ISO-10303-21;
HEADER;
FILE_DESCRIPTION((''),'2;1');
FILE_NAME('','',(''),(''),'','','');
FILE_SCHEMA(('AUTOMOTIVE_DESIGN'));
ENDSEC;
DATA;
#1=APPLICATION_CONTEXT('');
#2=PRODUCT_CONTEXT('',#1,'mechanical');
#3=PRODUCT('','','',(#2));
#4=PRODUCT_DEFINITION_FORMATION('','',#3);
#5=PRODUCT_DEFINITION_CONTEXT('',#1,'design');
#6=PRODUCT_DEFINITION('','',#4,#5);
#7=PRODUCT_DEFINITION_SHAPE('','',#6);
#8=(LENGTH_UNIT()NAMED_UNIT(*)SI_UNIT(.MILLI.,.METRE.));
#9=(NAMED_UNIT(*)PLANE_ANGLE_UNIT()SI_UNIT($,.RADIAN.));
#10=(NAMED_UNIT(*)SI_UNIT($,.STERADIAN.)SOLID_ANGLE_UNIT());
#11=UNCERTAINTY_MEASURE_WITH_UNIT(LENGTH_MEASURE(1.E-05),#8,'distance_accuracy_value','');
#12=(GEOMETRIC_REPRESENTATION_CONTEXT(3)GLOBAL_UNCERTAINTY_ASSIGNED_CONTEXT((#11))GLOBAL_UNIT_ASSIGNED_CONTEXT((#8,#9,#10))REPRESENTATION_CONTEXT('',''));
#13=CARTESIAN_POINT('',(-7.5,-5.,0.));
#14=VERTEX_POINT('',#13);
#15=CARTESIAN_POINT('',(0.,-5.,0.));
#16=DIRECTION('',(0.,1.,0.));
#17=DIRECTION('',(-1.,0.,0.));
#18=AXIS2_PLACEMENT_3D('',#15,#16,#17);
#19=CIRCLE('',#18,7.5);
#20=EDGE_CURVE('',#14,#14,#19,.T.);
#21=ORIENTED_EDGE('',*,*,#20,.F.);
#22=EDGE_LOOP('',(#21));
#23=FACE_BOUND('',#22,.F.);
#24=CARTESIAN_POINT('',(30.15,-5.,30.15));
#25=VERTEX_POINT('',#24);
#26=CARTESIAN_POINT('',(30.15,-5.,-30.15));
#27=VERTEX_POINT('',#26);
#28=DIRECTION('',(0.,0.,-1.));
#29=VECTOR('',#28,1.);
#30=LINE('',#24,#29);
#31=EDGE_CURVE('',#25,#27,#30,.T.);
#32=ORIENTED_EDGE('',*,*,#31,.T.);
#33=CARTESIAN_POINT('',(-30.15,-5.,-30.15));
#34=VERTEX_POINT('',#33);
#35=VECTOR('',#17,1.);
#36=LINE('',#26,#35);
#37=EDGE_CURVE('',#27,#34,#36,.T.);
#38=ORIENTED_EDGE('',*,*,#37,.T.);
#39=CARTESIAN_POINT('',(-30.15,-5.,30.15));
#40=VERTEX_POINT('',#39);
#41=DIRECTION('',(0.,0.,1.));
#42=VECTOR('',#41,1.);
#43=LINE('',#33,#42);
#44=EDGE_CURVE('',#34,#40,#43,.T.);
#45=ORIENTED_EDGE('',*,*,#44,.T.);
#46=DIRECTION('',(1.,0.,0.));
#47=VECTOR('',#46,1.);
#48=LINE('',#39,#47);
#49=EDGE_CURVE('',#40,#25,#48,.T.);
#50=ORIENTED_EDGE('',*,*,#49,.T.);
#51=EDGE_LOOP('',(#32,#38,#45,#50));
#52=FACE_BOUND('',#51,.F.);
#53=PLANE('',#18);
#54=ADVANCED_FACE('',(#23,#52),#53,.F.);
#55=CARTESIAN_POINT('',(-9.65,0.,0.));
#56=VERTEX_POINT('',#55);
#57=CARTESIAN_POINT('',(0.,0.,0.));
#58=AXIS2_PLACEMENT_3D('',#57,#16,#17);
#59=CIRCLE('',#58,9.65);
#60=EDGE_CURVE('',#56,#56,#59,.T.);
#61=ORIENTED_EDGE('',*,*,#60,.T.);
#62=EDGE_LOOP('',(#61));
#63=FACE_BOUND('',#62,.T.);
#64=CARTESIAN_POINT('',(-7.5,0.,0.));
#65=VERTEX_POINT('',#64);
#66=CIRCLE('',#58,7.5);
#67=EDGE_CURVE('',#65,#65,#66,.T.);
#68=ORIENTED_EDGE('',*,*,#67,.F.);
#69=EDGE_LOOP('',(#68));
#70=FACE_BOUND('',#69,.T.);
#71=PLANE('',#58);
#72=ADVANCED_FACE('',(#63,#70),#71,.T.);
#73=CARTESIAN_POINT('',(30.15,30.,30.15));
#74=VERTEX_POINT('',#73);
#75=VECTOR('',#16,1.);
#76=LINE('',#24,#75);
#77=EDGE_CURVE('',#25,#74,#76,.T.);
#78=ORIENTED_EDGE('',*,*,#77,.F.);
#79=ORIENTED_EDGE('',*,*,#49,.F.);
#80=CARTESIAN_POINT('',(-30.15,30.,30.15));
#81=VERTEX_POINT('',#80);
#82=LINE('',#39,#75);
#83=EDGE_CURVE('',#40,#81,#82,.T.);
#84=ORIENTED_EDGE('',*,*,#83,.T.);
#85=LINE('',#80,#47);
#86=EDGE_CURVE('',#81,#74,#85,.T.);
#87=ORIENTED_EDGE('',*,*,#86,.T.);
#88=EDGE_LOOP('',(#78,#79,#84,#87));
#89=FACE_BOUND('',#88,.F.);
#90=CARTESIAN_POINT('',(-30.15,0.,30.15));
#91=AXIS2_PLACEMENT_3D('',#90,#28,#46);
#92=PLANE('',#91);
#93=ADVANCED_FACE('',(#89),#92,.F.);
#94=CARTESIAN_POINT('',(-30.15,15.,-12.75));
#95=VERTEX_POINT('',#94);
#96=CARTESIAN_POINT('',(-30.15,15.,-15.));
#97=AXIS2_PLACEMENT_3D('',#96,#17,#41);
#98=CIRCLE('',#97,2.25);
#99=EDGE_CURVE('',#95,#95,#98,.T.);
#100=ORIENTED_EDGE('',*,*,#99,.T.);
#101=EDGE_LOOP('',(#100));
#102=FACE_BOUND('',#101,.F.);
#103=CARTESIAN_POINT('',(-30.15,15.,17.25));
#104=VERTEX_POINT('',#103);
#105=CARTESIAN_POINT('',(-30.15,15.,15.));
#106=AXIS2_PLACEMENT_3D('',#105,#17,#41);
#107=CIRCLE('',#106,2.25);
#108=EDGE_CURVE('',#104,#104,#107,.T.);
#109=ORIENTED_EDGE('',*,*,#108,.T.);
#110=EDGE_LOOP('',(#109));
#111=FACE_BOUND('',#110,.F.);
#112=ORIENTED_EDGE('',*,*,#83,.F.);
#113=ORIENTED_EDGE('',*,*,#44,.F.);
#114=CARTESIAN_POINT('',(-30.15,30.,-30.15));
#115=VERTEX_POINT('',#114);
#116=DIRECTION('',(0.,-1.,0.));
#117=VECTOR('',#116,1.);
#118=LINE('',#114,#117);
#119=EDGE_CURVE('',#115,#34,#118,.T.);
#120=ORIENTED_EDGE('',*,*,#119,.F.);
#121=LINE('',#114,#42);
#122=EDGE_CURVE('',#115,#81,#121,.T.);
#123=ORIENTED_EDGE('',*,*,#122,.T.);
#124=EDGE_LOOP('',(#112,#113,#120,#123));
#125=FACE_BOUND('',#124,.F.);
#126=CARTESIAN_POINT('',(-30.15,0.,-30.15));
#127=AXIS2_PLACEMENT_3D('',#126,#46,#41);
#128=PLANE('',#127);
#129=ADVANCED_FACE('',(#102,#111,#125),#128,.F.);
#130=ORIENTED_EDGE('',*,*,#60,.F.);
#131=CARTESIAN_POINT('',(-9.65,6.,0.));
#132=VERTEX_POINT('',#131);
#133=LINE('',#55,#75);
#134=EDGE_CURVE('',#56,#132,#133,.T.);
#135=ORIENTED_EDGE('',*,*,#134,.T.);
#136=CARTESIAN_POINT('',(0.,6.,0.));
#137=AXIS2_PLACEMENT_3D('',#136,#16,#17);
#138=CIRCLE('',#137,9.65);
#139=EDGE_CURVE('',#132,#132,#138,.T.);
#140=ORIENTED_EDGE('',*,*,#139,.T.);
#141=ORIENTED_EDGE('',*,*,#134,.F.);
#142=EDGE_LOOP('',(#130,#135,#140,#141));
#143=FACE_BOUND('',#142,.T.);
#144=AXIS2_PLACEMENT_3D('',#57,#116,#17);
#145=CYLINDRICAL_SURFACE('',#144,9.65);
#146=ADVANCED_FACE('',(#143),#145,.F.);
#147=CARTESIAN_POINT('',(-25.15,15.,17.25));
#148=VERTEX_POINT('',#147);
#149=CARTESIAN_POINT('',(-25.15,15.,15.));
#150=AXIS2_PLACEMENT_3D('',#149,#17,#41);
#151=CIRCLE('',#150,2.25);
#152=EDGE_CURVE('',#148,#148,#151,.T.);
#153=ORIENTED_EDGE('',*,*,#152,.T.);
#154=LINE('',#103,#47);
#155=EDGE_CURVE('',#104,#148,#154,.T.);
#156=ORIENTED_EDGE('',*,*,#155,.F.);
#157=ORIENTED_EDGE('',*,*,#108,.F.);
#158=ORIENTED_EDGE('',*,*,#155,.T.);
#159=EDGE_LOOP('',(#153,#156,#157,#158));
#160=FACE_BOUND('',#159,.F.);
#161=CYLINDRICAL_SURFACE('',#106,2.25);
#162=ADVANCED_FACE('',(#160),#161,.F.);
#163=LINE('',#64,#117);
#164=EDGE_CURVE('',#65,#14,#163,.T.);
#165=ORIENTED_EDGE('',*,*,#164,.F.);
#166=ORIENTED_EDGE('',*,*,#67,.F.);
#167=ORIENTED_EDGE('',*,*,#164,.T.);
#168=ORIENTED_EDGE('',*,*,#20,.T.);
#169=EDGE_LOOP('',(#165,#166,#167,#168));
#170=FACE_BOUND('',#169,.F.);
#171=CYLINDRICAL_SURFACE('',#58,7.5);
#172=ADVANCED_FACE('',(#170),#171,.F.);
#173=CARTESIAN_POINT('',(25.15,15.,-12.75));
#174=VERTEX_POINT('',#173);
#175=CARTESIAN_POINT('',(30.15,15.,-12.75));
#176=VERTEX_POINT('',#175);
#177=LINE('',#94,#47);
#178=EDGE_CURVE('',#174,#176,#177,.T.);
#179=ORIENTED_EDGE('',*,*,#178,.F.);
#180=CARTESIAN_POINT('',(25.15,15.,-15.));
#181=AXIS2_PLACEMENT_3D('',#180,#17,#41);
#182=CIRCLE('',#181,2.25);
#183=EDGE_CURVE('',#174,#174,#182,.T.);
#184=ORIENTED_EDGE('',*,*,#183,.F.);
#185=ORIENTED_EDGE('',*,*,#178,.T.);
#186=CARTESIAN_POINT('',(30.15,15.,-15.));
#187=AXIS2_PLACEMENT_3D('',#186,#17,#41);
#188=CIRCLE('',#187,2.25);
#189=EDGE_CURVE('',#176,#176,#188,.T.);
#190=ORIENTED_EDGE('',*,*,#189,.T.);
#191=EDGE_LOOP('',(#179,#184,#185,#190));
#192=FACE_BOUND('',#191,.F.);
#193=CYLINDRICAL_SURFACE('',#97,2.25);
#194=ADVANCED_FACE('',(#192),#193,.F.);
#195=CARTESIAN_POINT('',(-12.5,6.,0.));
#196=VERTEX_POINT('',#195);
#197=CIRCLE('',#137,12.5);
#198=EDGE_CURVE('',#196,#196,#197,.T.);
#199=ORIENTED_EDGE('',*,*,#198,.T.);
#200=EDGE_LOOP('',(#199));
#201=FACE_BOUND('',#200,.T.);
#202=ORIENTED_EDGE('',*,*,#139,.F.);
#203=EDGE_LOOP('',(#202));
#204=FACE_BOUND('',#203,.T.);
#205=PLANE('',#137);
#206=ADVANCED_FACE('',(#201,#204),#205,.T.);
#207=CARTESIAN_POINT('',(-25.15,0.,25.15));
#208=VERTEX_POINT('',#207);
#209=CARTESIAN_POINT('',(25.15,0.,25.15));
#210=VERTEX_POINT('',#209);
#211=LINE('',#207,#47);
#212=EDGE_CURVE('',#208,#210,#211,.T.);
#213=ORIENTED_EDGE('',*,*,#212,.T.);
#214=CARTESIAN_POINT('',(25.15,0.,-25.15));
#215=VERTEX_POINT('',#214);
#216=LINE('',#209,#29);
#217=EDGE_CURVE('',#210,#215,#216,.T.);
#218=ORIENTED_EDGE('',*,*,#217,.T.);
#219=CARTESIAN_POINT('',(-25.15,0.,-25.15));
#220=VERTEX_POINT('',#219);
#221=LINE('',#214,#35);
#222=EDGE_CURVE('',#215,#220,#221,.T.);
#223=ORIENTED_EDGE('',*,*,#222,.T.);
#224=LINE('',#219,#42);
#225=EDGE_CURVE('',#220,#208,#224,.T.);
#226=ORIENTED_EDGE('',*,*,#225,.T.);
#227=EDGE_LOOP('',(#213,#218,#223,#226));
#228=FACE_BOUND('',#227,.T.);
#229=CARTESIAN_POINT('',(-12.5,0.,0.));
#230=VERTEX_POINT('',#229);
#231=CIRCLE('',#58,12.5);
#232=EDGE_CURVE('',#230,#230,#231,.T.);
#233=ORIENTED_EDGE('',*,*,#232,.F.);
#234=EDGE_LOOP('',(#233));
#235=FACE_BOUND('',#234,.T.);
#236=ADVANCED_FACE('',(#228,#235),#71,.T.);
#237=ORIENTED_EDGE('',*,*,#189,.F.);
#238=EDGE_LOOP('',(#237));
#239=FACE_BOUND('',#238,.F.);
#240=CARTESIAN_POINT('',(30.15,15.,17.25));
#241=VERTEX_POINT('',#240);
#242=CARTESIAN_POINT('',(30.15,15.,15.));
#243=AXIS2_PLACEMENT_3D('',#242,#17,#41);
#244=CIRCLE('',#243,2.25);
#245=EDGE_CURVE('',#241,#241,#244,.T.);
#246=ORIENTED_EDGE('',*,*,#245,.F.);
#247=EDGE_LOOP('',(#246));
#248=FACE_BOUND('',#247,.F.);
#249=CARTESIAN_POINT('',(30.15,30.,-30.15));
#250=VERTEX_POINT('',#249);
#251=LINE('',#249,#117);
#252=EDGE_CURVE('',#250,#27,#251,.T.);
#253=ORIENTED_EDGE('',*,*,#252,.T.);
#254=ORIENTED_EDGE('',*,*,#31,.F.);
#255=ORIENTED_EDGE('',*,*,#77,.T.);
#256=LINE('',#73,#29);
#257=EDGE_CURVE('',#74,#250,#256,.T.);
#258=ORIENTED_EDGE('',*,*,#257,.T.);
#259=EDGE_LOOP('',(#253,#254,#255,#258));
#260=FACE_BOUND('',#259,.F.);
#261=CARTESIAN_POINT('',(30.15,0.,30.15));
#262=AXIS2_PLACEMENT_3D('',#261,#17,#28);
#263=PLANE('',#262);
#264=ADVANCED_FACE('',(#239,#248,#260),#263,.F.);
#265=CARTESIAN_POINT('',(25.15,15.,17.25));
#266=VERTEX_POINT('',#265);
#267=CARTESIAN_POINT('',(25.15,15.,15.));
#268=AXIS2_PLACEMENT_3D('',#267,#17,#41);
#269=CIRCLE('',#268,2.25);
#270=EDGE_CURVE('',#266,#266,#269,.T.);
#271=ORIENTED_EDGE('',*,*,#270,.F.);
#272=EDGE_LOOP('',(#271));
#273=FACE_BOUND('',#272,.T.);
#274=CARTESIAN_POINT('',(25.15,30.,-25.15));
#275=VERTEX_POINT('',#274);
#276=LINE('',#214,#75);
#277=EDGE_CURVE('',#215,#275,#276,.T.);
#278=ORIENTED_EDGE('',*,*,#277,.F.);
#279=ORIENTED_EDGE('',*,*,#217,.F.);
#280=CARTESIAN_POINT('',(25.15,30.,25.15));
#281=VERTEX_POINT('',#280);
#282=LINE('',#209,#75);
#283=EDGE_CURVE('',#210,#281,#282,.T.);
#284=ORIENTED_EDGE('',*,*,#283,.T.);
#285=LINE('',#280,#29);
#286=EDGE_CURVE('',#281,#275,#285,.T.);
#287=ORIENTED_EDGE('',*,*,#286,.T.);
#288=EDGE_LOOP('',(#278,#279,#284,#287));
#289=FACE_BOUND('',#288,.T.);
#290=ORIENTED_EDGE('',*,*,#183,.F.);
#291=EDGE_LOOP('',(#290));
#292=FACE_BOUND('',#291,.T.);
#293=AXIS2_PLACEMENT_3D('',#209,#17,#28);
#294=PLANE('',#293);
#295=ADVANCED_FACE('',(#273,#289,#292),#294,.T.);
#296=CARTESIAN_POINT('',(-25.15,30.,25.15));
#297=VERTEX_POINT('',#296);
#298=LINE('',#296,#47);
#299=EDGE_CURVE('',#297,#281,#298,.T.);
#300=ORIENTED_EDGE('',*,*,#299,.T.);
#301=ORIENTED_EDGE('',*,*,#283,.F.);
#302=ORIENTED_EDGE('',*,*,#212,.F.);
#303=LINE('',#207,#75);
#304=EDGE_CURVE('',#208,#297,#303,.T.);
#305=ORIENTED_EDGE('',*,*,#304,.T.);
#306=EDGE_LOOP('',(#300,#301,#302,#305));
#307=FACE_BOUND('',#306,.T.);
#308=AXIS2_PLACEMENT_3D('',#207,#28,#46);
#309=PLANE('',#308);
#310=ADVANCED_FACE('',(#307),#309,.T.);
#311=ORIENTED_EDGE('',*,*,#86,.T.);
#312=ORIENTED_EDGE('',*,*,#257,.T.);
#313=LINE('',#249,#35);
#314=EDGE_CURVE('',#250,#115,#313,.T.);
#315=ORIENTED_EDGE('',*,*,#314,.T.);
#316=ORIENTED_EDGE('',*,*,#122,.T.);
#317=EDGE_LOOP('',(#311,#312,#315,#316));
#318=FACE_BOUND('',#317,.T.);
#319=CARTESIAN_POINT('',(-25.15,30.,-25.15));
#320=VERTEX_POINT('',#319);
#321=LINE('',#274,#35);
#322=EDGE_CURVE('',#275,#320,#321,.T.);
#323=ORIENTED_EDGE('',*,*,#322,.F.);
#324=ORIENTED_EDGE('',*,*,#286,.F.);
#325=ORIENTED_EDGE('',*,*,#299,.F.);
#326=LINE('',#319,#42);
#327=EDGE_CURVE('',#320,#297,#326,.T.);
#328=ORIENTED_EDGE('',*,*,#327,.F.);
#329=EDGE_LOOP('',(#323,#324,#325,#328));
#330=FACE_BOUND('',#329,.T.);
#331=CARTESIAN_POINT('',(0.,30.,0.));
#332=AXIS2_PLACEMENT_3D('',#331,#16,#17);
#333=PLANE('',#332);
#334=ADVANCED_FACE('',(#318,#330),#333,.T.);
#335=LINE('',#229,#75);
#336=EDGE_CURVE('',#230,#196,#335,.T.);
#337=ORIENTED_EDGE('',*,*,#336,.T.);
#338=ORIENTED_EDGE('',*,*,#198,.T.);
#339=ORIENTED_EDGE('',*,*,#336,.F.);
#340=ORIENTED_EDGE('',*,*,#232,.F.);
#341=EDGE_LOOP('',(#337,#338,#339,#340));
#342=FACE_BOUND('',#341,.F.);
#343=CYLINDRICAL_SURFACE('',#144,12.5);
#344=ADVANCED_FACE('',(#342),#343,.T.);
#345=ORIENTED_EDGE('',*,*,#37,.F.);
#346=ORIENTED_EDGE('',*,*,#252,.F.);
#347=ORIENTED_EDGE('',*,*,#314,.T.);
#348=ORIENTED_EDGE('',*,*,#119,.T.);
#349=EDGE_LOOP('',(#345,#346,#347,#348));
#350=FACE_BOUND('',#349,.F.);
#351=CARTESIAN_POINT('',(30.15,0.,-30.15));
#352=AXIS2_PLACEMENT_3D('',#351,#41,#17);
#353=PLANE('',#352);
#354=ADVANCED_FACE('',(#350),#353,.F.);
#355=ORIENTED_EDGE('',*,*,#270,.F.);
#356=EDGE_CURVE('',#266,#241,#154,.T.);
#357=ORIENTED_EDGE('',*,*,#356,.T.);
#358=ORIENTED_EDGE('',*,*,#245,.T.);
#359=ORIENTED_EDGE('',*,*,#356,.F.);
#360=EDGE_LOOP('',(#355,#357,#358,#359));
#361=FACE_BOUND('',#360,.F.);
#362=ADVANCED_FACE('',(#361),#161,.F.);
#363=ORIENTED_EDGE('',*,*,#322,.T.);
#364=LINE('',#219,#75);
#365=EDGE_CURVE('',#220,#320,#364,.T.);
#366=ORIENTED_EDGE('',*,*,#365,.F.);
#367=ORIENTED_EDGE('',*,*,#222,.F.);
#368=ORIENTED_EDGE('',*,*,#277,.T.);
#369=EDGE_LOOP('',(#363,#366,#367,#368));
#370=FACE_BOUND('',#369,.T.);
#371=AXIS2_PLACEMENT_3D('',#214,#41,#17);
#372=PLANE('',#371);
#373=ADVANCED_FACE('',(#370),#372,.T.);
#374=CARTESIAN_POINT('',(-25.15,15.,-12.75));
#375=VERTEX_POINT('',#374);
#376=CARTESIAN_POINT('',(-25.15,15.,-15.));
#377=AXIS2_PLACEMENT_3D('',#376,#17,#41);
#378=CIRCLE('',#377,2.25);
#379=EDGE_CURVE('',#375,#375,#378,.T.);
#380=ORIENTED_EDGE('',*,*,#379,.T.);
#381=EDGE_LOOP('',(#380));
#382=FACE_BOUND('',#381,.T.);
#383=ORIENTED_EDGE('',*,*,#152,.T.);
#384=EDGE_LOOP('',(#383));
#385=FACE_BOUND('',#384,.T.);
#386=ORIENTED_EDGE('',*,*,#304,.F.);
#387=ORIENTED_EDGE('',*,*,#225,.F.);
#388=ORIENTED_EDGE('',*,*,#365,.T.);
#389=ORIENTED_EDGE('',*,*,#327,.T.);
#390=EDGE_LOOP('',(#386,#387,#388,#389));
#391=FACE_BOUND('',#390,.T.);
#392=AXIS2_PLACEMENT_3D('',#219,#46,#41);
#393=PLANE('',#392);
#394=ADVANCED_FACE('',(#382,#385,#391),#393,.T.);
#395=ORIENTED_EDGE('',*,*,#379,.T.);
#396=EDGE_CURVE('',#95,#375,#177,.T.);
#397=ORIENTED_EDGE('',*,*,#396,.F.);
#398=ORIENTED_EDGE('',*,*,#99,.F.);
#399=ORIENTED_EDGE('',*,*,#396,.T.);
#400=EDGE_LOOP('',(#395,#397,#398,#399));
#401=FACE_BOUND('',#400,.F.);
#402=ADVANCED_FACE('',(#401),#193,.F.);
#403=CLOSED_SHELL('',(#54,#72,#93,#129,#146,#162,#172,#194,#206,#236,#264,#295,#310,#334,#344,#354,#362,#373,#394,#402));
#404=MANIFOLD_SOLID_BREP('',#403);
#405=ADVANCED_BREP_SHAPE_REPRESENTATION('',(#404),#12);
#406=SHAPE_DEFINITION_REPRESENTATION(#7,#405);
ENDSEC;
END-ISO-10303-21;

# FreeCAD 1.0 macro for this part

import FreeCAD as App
import Part
import Sketcher

doc = App.newDocument("Part")
body = doc.addObject("PartDesign::Body", "Body")

# Sketch on XZ plane
sketch1 = doc.addObject("Sketcher::SketchObject", "Sketch")
body.addObject(sketch1)
sketch1.AttachmentSupport = (doc.XZ_Plane, [""])
sketch1.MapMode = "FlatFace"
sketch1.addGeometry([
    Part.LineSegment(App.Vector(-30, -30, 0), App.Vector(-30, 30, 0)),  # 0
    Part.LineSegment(App.Vector(-30, 30, 0), App.Vector(30, 30, 0)),  # 1
    Part.LineSegment(App.Vector(30, 30, 0), App.Vector(30, -30, 0)),  # 2
    Part.LineSegment(App.Vector(30, -30, 0), App.Vector(-30, -30, 0)),  # 3
    Part.LineSegment(App.Vector(25, 25, 0), App.Vector(-25, 25, 0)),  # 4
    Part.LineSegment(App.Vector(-25, 25, 0), App.Vector(-25, -25, 0)),  # 5
    Part.LineSegment(App.Vector(-25, -25, 0), App.Vector(25, -25, 0)),  # 6
    Part.LineSegment(App.Vector(25, -25, 0), App.Vector(25, 25, 0)),  # 7
], False)
sketch1.addConstraint([
    Sketcher.Constraint("Coincident", 0, 2, 1, 1),
    Sketcher.Constraint("Coincident", 1, 2, 2, 1),
    Sketcher.Constraint("Coincident", 2, 2, 3, 1),
    Sketcher.Constraint("Coincident", 3, 2, 0, 1),
    Sketcher.Constraint("Coincident", 4, 2, 5, 1),
    Sketcher.Constraint("Coincident", 5, 2, 6, 1),
    Sketcher.Constraint("Coincident", 6, 2, 7, 1),
    Sketcher.Constraint("Coincident", 7, 2, 4, 1),
    Sketcher.Constraint("Vertical", 0),
    Sketcher.Constraint("Horizontal", 1),
    Sketcher.Constraint("Vertical", 2),
    Sketcher.Constraint("Horizontal", 3),
    Sketcher.Constraint("Horizontal", 4),
    Sketcher.Constraint("Vertical", 5),
    Sketcher.Constraint("Horizontal", 6),
    Sketcher.Constraint("Vertical", 7),
    Sketcher.Constraint("Symmetric", 0, 2, 2, 2, -1, 1),
    Sketcher.Constraint("Symmetric", 4, 2, 6, 2, -1, 1),
    Sketcher.Constraint("Equal", 3, 0),
    Sketcher.Constraint("Equal", 6, 5),
    Sketcher.Constraint("DistanceX", 1, 1, 1, 2, 60.3),
    Sketcher.Constraint("DistanceX", 4, 2, 4, 1, 50.3),
])
pad1 = doc.addObject("PartDesign::Pad", "Pad")
body.addObject(pad1)
pad1.Profile = sketch1
pad1.Length = 30
pad1.Reversed = True

# Sketch on XZ plane
sketch2 = doc.addObject("Sketcher::SketchObject", "Sketch001")
body.addObject(sketch2)
sketch2.AttachmentSupport = (doc.XZ_Plane, [""])
sketch2.MapMode = "FlatFace"
sketch2.addGeometry([
    Part.LineSegment(App.Vector(-30, -30, 0), App.Vector(-30, 30, 0)),  # 0
    Part.LineSegment(App.Vector(-30, 30, 0), App.Vector(30, 30, 0)),  # 1
    Part.LineSegment(App.Vector(30, 30, 0), App.Vector(30, -30, 0)),  # 2
    Part.LineSegment(App.Vector(30, -30, 0), App.Vector(-30, -30, 0)),  # 3
    Part.Circle(App.Vector(0, 0, 0), App.Vector(0, 0, 1), 8),  # 4
], False)
sketch2.addConstraint([
    Sketcher.Constraint("Coincident", 0, 2, 1, 1),
    Sketcher.Constraint("Coincident", 1, 2, 2, 1),
    Sketcher.Constraint("Coincident", 2, 2, 3, 1),
    Sketcher.Constraint("Coincident", 3, 2, 0, 1),
    Sketcher.Constraint("Vertical", 0),
    Sketcher.Constraint("Horizontal", 1),
    Sketcher.Constraint("Vertical", 2),
    Sketcher.Constraint("Horizontal", 3),
    Sketcher.Constraint("Coincident", 4, 3, -1, 1),
    Sketcher.Constraint("Symmetric", 0, 2, 2, 2, -1, 1),
    Sketcher.Constraint("Equal", 3, 0),
    Sketcher.Constraint("Diameter", 4, 15.0),
    Sketcher.Constraint("DistanceX", 1, 1, 1, 2, 60.3),
])
pad2 = doc.addObject("PartDesign::Pad", "Pad001")
body.addObject(pad2)
pad2.Profile = sketch2
pad2.Length = 5

# Sketch on XZ plane
sketch3 = doc.addObject("Sketcher::SketchObject", "Sketch002")
body.addObject(sketch3)
sketch3.AttachmentSupport = (doc.XZ_Plane, [""])
sketch3.MapMode = "FlatFace"
sketch3.addGeometry([
    Part.Circle(App.Vector(0, 0, 0), App.Vector(0, 0, 1), 12),
    Part.Circle(App.Vector(0, 0, 0), App.Vector(0, 0, 1), 10),
], False)
sketch3.addConstraint([
    Sketcher.Constraint("Coincident", 0, 3, -1, 1),
    Sketcher.Constraint("Coincident", 1, 3, -1, 1),
    Sketcher.Constraint("Diameter", 0, 25.0),
    Sketcher.Constraint("Diameter", 1, 19.3),
])
pad3 = doc.addObject("PartDesign::Pad", "Pad002")
body.addObject(pad3)
pad3.Profile = sketch3
pad3.Length = 6
pad3.Reversed = True

# Sketch on YZ plane
sketch4 = doc.addObject("Sketcher::SketchObject", "Sketch003")
body.addObject(sketch4)
sketch4.AttachmentSupport = (doc.YZ_Plane, [""])
sketch4.MapMode = "FlatFace"
sketch4.AttachmentOffset = App.Placement(App.Vector(0, 0, -30.15), App.Rotation())
sketch4.addGeometry([
    Part.Circle(App.Vector(15, 15, 0), App.Vector(0, 0, 1), 2.2),
    Part.Circle(App.Vector(15, -15, 0), App.Vector(0, 0, 1), 2.2),
], False)
sketch4.addConstraint([
    Sketcher.Constraint("Equal", 0, 1),
    Sketcher.Constraint("Symmetric", 0, 3, 1, 3, -1),
    Sketcher.Constraint("Diameter", 0, 4.5),
    Sketcher.Constraint("DistanceX", -1, 1, 0, 3, 15.0),
    Sketcher.Constraint("DistanceY", -1, 1, 0, 3, 15.0),
])
pocket1 = doc.addObject("PartDesign::Pocket", "Pocket")
body.addObject(pocket1)
pocket1.Profile = sketch4
pocket1.Length = 65
pocket1.Reversed = True

doc.recompute()
